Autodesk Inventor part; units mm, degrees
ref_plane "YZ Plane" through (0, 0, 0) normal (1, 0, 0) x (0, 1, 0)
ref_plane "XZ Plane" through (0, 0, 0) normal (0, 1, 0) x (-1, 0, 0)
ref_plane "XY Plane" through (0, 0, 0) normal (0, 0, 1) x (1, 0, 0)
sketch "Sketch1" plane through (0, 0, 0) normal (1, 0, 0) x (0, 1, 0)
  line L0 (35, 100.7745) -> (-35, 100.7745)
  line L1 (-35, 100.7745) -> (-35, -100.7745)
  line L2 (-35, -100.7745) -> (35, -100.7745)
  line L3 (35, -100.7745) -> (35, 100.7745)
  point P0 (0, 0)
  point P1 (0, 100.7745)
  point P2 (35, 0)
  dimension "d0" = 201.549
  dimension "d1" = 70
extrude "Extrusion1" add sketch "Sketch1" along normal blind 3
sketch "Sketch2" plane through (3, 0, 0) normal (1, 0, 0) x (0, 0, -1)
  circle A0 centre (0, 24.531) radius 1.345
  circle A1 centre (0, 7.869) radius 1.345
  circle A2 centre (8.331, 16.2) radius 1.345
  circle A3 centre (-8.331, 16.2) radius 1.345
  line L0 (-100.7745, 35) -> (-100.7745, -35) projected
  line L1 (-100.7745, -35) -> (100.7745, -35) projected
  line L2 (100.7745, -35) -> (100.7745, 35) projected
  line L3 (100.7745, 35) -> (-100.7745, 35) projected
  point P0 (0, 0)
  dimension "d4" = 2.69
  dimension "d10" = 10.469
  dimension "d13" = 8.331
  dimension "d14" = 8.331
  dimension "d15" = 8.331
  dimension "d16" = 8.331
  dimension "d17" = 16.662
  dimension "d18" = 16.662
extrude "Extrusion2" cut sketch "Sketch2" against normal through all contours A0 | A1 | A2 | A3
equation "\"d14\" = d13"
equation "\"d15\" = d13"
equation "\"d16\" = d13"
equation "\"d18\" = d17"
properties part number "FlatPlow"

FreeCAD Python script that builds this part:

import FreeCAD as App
import Part
import Sketcher
from FreeCAD import Vector
Q = App.Units.Quantity


def add_polygon(sketch, points):
    """Adds a closed chain of lines whose ends are joined by coincident constraints."""
    first, n = sketch.GeometryCount, len(points)
    for a, b in zip(points, points[1:] + points[:1]):
        sketch.addGeometry(Part.LineSegment(App.Vector(*a, 0), App.Vector(*b, 0)), False)
    for i in range(n):
        sketch.addConstraint(Sketcher.Constraint("Coincident", first + i, 2, first + (i + 1) % n, 1))

doc = App.newDocument("Part")
body = doc.addObject("PartDesign::Body", "Body")

# Sketch on YZ plane
sketch1 = doc.addObject("Sketcher::SketchObject", "Sketch")
body.addObject(sketch1)
sketch1.AttachmentSupport = (doc.YZ_Plane, [""])
sketch1.MapMode = "FlatFace"
add_polygon(sketch1, [(35, -100.7745), (35, 100.7745), (-35, 100.7745), (-35, -100.7745)])  # lines 0-3
sketch1.addConstraint([
    Sketcher.Constraint("Vertical", 0),
    Sketcher.Constraint("Horizontal", 1),
    Sketcher.Constraint("Vertical", 2),
    Sketcher.Constraint("Horizontal", 3),
    Sketcher.Constraint("Symmetric", 0, 2, 2, 2, -1, 1),
    Sketcher.Constraint("DistanceX", 1, 2, 1, 1, Q("70 mm")),
    Sketcher.Constraint("DistanceY", 0, 1, 0, 2, Q("201.549 mm")),
])
pad1 = doc.addObject("PartDesign::Pad", "Pad")
body.addObject(pad1)
pad1.Profile = sketch1
pad1.Length = 3

# Sketch on YZ plane
sketch2 = doc.addObject("Sketcher::SketchObject", "Sketch001")
body.addObject(sketch2)
sketch2.AttachmentSupport = (doc.YZ_Plane, [""])
sketch2.MapMode = "FlatFace"
sketch2.AttachmentOffset = App.Placement(Vector(0, 0, 3), App.Rotation())
sketch2.addGeometry([
    Part.Circle(Vector(24.531, 0, 0), Vector(0, 0, 1), 1.345),
    Part.Circle(Vector(7.869, 0, 0), Vector(0, 0, 1), 1.345),
    Part.Circle(Vector(16.2, -8.331, 0), Vector(0, 0, 1), 1.345),
    Part.Circle(Vector(16.2, 8.331, 0), Vector(0, 0, 1), 1.345),
], False)
sketch2.addConstraint([
    Sketcher.Constraint("Equal", 0, 1),
    Sketcher.Constraint("Equal", 1, 2),
    Sketcher.Constraint("Equal", 2, 3),
    Sketcher.Constraint("Symmetric", 2, 3, 3, 3, -1),
    Sketcher.Constraint("PointOnObject", 0, 3, -1),
    Sketcher.Constraint("PointOnObject", 1, 3, -1),
    Sketcher.Constraint("Diameter", 0, Q("2.69 mm")),
    Sketcher.Constraint("DistanceY", 2, 3, -1, 1, Q("8.331 mm")),
    Sketcher.Constraint("DistanceX", 1, 3, 0, 3, Q("16.662 mm")),
    Sketcher.Constraint("DistanceX", 2, 3, 0, 3, Q("8.331 mm")),
    Sketcher.Constraint("DistanceX", -1, 1, 2, 3, Q("16.2 mm")),
])
pocket1 = doc.addObject("PartDesign::Pocket", "Pocket")
body.addObject(pocket1)
pocket1.Profile = sketch2
pocket1.Type = "ThroughAll"

doc.recompute()
